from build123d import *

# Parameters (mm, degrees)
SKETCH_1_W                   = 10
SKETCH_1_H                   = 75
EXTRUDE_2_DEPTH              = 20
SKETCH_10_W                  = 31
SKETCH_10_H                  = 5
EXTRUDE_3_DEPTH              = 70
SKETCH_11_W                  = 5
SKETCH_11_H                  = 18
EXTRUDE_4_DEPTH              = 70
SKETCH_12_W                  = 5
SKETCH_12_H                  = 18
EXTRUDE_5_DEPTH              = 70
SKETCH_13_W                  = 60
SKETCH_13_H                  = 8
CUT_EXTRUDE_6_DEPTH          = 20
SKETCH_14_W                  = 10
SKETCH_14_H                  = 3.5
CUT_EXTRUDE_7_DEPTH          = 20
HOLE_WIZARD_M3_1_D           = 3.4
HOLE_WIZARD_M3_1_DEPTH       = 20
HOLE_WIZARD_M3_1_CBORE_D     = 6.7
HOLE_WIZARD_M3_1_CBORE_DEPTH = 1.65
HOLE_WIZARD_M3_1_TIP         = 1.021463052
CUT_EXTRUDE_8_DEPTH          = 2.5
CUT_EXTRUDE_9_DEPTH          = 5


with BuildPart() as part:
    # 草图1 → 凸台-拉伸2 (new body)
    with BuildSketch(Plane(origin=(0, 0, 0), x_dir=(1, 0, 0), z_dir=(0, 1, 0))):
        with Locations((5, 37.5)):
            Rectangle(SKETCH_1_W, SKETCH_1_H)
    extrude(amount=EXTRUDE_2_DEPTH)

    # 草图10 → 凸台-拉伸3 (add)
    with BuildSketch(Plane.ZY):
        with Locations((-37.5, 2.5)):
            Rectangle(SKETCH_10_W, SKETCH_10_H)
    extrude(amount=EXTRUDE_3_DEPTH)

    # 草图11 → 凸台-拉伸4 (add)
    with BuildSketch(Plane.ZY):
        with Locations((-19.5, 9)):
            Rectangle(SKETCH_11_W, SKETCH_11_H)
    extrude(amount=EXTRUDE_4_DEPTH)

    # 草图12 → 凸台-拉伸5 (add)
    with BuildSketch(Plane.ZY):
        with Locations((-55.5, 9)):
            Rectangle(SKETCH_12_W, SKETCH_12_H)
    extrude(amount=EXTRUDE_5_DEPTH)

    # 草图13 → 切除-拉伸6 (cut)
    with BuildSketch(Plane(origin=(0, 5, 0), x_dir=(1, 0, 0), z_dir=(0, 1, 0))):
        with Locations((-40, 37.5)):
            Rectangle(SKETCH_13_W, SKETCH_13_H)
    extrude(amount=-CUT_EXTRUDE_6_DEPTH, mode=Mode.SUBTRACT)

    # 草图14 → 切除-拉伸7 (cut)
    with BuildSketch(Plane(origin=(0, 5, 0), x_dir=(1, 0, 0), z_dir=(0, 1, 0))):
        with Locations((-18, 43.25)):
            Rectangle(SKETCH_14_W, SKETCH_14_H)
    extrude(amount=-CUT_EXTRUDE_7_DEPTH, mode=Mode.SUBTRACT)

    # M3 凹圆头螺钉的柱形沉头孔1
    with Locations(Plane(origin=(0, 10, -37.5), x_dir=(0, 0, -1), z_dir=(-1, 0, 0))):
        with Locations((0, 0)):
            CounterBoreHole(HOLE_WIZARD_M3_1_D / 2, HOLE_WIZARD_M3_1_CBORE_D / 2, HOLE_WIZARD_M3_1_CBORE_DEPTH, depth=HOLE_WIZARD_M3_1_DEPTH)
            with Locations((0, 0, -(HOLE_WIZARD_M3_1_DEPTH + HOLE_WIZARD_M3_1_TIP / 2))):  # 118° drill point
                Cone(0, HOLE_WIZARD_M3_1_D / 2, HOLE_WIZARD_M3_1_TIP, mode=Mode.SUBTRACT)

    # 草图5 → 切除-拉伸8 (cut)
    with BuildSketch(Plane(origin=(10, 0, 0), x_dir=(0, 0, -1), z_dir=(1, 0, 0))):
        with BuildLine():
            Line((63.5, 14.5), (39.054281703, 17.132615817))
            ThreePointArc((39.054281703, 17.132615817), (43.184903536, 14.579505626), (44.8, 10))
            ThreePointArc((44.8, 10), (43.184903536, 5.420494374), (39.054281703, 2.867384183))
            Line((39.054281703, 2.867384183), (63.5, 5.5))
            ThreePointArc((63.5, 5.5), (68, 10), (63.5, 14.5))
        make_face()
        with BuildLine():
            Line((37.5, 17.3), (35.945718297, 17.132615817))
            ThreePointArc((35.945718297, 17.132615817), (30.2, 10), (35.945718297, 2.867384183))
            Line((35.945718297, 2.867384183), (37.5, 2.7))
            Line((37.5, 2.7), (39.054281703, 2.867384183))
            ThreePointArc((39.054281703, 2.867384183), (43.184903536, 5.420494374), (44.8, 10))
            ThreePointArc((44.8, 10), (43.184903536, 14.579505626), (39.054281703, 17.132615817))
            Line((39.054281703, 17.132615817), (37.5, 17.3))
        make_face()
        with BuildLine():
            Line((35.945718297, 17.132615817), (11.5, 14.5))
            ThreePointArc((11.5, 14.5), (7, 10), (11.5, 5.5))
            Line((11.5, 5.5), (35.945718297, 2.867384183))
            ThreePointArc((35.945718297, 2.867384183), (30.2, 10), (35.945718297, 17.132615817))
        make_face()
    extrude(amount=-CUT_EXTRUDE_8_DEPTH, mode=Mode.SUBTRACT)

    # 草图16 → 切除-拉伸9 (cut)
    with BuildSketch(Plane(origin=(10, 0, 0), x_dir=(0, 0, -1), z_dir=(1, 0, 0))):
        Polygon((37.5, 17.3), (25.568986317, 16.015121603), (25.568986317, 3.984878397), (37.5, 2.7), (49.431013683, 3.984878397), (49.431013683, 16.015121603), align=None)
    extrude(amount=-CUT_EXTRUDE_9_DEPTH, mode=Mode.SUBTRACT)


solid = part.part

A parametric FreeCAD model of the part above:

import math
import FreeCAD as App
import Part
import Sketcher


def add_polygon(sketch, points):
    """Adds a closed chain of lines whose ends are joined by coincident constraints."""
    first, n = sketch.GeometryCount, len(points)
    for a, b in zip(points, points[1:] + points[:1]):
        sketch.addGeometry(Part.LineSegment(App.Vector(*a, 0), App.Vector(*b, 0)), False)
    for i in range(n):
        sketch.addConstraint(Sketcher.Constraint("Coincident", first + i, 2, first + (i + 1) % n, 1))

doc = App.newDocument("Part")
params = doc.addObject("Spreadsheet::Sheet", "Params")
for row, (alias, value) in enumerate([
    ("sketch1_width", "10 mm"),
    ("sketch1_height", "75 mm"),
    ("pad1_length", "20 mm"),
    ("sketch2_width", "5 mm"),
    ("sketch2_height", "31 mm"),
    ("pad2_length", "70 mm"),
    ("sketch3_width", "18 mm"),
    ("sketch3_height", "5 mm"),
    ("pad3_length", "70 mm"),
    ("sketch4_width", "18 mm"),
    ("sketch4_height", "5 mm"),
    ("pad4_length", "70 mm"),
    ("sketch5_width", "60 mm"),
    ("sketch5_height", "8 mm"),
    ("pocket1_length", "20 mm"),
    ("sketch6_width", "10 mm"),
    ("sketch6_height", "3.5 mm"),
    ("pocket2_length", "20 mm"),
    ("sketch7_diameter", "3.4 mm"),
    ("hole_diameter", "3.4 mm"),
    ("hole_depth", "20 mm"),
    ("hole_cbore_diameter", "6.7 mm"),
    ("hole_cbore_depth", "1.65 mm"),
    ("sketch8_radius", "4.5 mm"),
    ("pocket3_length", "2.5 mm"),
    ("sketch9_length", "12 mm"),
    ("pocket4_length", "5 mm"),
], start=1):
    params.set(f"A{row}", alias)
    params.set(f"B{row}", "=" + value)
    params.setAlias(f"B{row}", alias)

body = doc.addObject("PartDesign::Body", "Body")

# Sketch on XZ plane
sketch1 = body.newObject("Sketcher::SketchObject", "Sketch")
sketch1.AttachmentSupport = (doc.getObject("XZ_Plane"), [""])
sketch1.MapMode = "FlatFace"
add_polygon(sketch1, [(0, -75), (0, 0), (10, 0), (10, -75)])  # lines 0-3
sketch1.addConstraint([
    Sketcher.Constraint("Vertical", 0),
    Sketcher.Constraint("Horizontal", 1),
    Sketcher.Constraint("Vertical", 2),
    Sketcher.Constraint("Horizontal", 3),
    Sketcher.Constraint("Coincident", 0, 2, -1, 1),
    Sketcher.Constraint("DistanceX", 1, 1, 1, 2, 10.0),
    Sketcher.Constraint("DistanceY", 0, 1, 0, 2, 75.0),
])
sketch1.setExpression("Constraints[9]", "Params.sketch1_width")
sketch1.setExpression("Constraints[10]", "Params.sketch1_height")
pad1 = body.newObject("PartDesign::Pad", "Pad")
pad1.Profile = sketch1
pad1.setExpression("Length", "Params.pad1_length")
pad1.Reversed = True

# Sketch on YZ plane
sketch2 = body.newObject("Sketcher::SketchObject", "Sketch001")
sketch2.AttachmentSupport = (doc.getObject("YZ_Plane"), [""])
sketch2.MapMode = "FlatFace"
add_polygon(sketch2, [(5, -53), (0, -53), (0, -22), (5, -22)])  # lines 0-3
sketch2.addConstraint([
    Sketcher.Constraint("Horizontal", 0),
    Sketcher.Constraint("Vertical", 1),
    Sketcher.Constraint("Horizontal", 2),
    Sketcher.Constraint("Vertical", 3),
    Sketcher.Constraint("PointOnObject", 0, 2, -2),
    Sketcher.Constraint("DistanceX", 0, 2, 0, 1, 5.0),
    Sketcher.Constraint("DistanceY", 1, 1, 1, 2, 31.0),
    Sketcher.Constraint("DistanceY", 0, 2, -1, 1, 53.0),
])
sketch2.setExpression("Constraints[9]", "Params.sketch2_width")
sketch2.setExpression("Constraints[10]", "Params.sketch2_height")
pad2 = body.newObject("PartDesign::Pad", "Pad001")
pad2.Profile = sketch2
pad2.setExpression("Length", "Params.pad2_length")
pad2.Reversed = True

# Sketch on YZ plane
sketch3 = body.newObject("Sketcher::SketchObject", "Sketch002")
sketch3.AttachmentSupport = (doc.getObject("YZ_Plane"), [""])
sketch3.MapMode = "FlatFace"
add_polygon(sketch3, [(18, -22), (0, -22), (0, -17), (18, -17)])  # lines 0-3
sketch3.addConstraint([
    Sketcher.Constraint("Horizontal", 0),
    Sketcher.Constraint("Vertical", 1),
    Sketcher.Constraint("Horizontal", 2),
    Sketcher.Constraint("Vertical", 3),
    Sketcher.Constraint("PointOnObject", 0, 2, -2),
    Sketcher.Constraint("DistanceX", 0, 2, 0, 1, 18.0),
    Sketcher.Constraint("DistanceY", 1, 1, 1, 2, 5.0),
    Sketcher.Constraint("DistanceY", 0, 2, -1, 1, 22.0),
])
sketch3.setExpression("Constraints[9]", "Params.sketch3_width")
sketch3.setExpression("Constraints[10]", "Params.sketch3_height")
pad3 = body.newObject("PartDesign::Pad", "Pad002")
pad3.Profile = sketch3
pad3.setExpression("Length", "Params.pad3_length")
pad3.Reversed = True

# Sketch on YZ plane
sketch4 = body.newObject("Sketcher::SketchObject", "Sketch003")
sketch4.AttachmentSupport = (doc.getObject("YZ_Plane"), [""])
sketch4.MapMode = "FlatFace"
add_polygon(sketch4, [(18, -58), (0, -58), (0, -53), (18, -53)])  # lines 0-3
sketch4.addConstraint([
    Sketcher.Constraint("Horizontal", 0),
    Sketcher.Constraint("Vertical", 1),
    Sketcher.Constraint("Horizontal", 2),
    Sketcher.Constraint("Vertical", 3),
    Sketcher.Constraint("PointOnObject", 0, 2, -2),
    Sketcher.Constraint("DistanceX", 0, 2, 0, 1, 18.0),
    Sketcher.Constraint("DistanceY", 1, 1, 1, 2, 5.0),
    Sketcher.Constraint("DistanceY", 0, 2, -1, 1, 58.0),
])
sketch4.setExpression("Constraints[9]", "Params.sketch4_width")
sketch4.setExpression("Constraints[10]", "Params.sketch4_height")
pad4 = body.newObject("PartDesign::Pad", "Pad003")
pad4.Profile = sketch4
pad4.setExpression("Length", "Params.pad4_length")
pad4.Reversed = True

# Sketch on XZ plane
sketch5 = body.newObject("Sketcher::SketchObject", "Sketch004")
sketch5.AttachmentSupport = (doc.getObject("XZ_Plane"), [""])
sketch5.MapMode = "FlatFace"
sketch5.AttachmentOffset = App.Placement(App.Vector(0, 0, -5), App.Rotation())
add_polygon(sketch5, [(-70, -41.5), (-70, -33.5), (-10, -33.5), (-10, -41.5)])  # lines 0-3
sketch5.addConstraint([
    Sketcher.Constraint("Vertical", 0),
    Sketcher.Constraint("Horizontal", 1),
    Sketcher.Constraint("Vertical", 2),
    Sketcher.Constraint("Horizontal", 3),
    Sketcher.Constraint("DistanceX", 1, 1, 1, 2, 60.0),
    Sketcher.Constraint("DistanceY", 0, 1, 0, 2, 8.0),
    Sketcher.Constraint("DistanceX", 0, 2, -1, 1, 70.0),
    Sketcher.Constraint("DistanceY", 0, 2, -1, 1, 33.5),
])
sketch5.setExpression("Constraints[8]", "Params.sketch5_width")
sketch5.setExpression("Constraints[9]", "Params.sketch5_height")
pocket1 = body.newObject("PartDesign::Pocket", "Pocket")
pocket1.Profile = sketch5
pocket1.setExpression("Length", "Params.pocket1_length")
pocket1.Reversed = True

# Sketch on XZ plane
sketch6 = body.newObject("Sketcher::SketchObject", "Sketch005")
sketch6.AttachmentSupport = (doc.getObject("XZ_Plane"), [""])
sketch6.MapMode = "FlatFace"
sketch6.AttachmentOffset = App.Placement(App.Vector(0, 0, -5), App.Rotation())
add_polygon(sketch6, [(-23, -45), (-23, -41.5), (-13, -41.5), (-13, -45)])  # lines 0-3
sketch6.addConstraint([
    Sketcher.Constraint("Vertical", 0),
    Sketcher.Constraint("Horizontal", 1),
    Sketcher.Constraint("Vertical", 2),
    Sketcher.Constraint("Horizontal", 3),
    Sketcher.Constraint("DistanceX", 1, 1, 1, 2, 10.0),
    Sketcher.Constraint("DistanceY", 0, 1, 0, 2, 3.5),
    Sketcher.Constraint("DistanceX", 0, 2, -1, 1, 23.0),
    Sketcher.Constraint("DistanceY", 2, 2, -1, 1, 45.0),
])
sketch6.setExpression("Constraints[8]", "Params.sketch6_width")
sketch6.setExpression("Constraints[9]", "Params.sketch6_height")
pocket2 = body.newObject("PartDesign::Pocket", "Pocket001")
pocket2.Profile = sketch6
pocket2.setExpression("Length", "Params.pocket2_length")
pocket2.Reversed = True

# Sketch on YZ plane
sketch7 = body.newObject("Sketcher::SketchObject", "Sketch006")
sketch7.AttachmentSupport = (doc.getObject("YZ_Plane"), [""])
sketch7.MapMode = "FlatFace"
sketch7.addGeometry(Part.Circle(App.Vector(10, -37.5, 0), App.Vector(0, 0, 1), 1.7), False)
sketch7.addConstraint([
    Sketcher.Constraint("Diameter", 0, 3.4),
    Sketcher.Constraint("DistanceX", -1, 1, 0, 3, 10.0),
    Sketcher.Constraint("DistanceY", 0, 3, -1, 1, 37.5),
])
sketch7.setExpression("Constraints[0]", "Params.sketch7_diameter")
doc.recompute()
hole = body.newObject("PartDesign::Hole", "Hole")
hole.Profile = sketch7
hole.ThreadType = "None"
hole.setExpression("Diameter", "Params.hole_diameter")
hole.DepthType = "Dimension"
hole.setExpression("Depth", "Params.hole_depth")
hole.DrillPoint = "Angled"
hole.DrillPointAngle = 118
hole.HoleCutType = "Counterbore"
hole.setExpression("HoleCutDiameter", "Params.hole_cbore_diameter")
hole.setExpression("HoleCutDepth", "Params.hole_cbore_depth")
hole.Reversed = True

# Sketch on YZ plane
sketch8 = body.newObject("Sketcher::SketchObject", "Sketch007")
sketch8.AttachmentSupport = (doc.getObject("YZ_Plane"), [""])
sketch8.MapMode = "FlatFace"
sketch8.AttachmentOffset = App.Placement(App.Vector(0, 0, 10), App.Rotation())
sketch8.addGeometry([
    Part.LineSegment(App.Vector(14.5, -63.5, 0), App.Vector(17.132616, -39.054282, 0)),  # 0
    Part.LineSegment(App.Vector(17.132616, -39.054282, 0), App.Vector(17.3, -37.5, 0)),  # 1
    Part.LineSegment(App.Vector(17.3, -37.5, 0), App.Vector(17.132616, -35.945718, 0)),  # 2
    Part.LineSegment(App.Vector(17.132616, -35.945718, 0), App.Vector(14.5, -11.5, 0)),  # 3
    Part.ArcOfCircle(Part.Circle(App.Vector(10, -11.5, 0), App.Vector(0, 0, 1), 4.5), math.radians(0), math.radians(180)),  # 4
    Part.LineSegment(App.Vector(5.5, -11.5, 0), App.Vector(2.867384, -35.945718, 0)),  # 5
    Part.LineSegment(App.Vector(2.867384, -35.945718, 0), App.Vector(2.7, -37.5, 0)),  # 6
    Part.LineSegment(App.Vector(2.7, -37.5, 0), App.Vector(2.867384, -39.054282, 0)),  # 7
    Part.LineSegment(App.Vector(2.867384, -39.054282, 0), App.Vector(5.5, -63.5, 0)),  # 8
    Part.ArcOfCircle(Part.Circle(App.Vector(10, -63.5, 0), App.Vector(0, 0, 1), 4.5), math.radians(180), math.radians(360)),  # 9
], False)
sketch8.addConstraint([
    Sketcher.Constraint("Coincident", 0, 2, 1, 1),
    Sketcher.Constraint("Coincident", 1, 2, 2, 1),
    Sketcher.Constraint("Coincident", 2, 2, 3, 1),
    Sketcher.Constraint("Coincident", 3, 2, 4, 1),
    Sketcher.Constraint("Coincident", 4, 2, 5, 1),
    Sketcher.Constraint("Coincident", 5, 2, 6, 1),
    Sketcher.Constraint("Coincident", 6, 2, 7, 1),
    Sketcher.Constraint("Coincident", 7, 2, 8, 1),
    Sketcher.Constraint("Coincident", 8, 2, 9, 1),
    Sketcher.Constraint("Coincident", 9, 2, 0, 1),
    Sketcher.Constraint("Equal", 4, 9),
    Sketcher.Constraint("Parallel", 0, 1),
    Sketcher.Constraint("Parallel", 2, 3),
    Sketcher.Constraint("Parallel", 1, 5),
    Sketcher.Constraint("Parallel", 5, 6),
    Sketcher.Constraint("Parallel", 3, 7),
    Sketcher.Constraint("Parallel", 7, 8),
    Sketcher.Constraint("Horizontal", 4, 3, 3, 2),
    Sketcher.Constraint("Horizontal", 3, 2, 4, 2),
    Sketcher.Constraint("Horizontal", 2, 2, 5, 2),
    Sketcher.Constraint("Horizontal", 1, 2, 6, 2),
    Sketcher.Constraint("Horizontal", 0, 2, 7, 2),
    Sketcher.Constraint("Horizontal", 9, 3, 8, 2),
    Sketcher.Constraint("Horizontal", 8, 2, 9, 2),
    Sketcher.Constraint("Vertical", 4, 3, 9, 3),
    Sketcher.Constraint("Vertical", 0, 2, 2, 2),
    Sketcher.Constraint("Radius", 4, 4.5),
    Sketcher.Constraint("DistanceX", -1, 1, 4, 3, 10.0),
    Sketcher.Constraint("DistanceY", 9, 3, 4, 3, 52.0),
    Sketcher.Constraint("DistanceY", 4, 3, -1, 1, 11.5),
    Sketcher.Constraint("DistanceX", -1, 1, 1, 2, 17.3),
    Sketcher.Constraint("Distance", 1, 1.563269),
])
sketch8.setExpression("Constraints[26]", "Params.sketch8_radius")
pocket3 = body.newObject("PartDesign::Pocket", "Pocket002")
pocket3.Profile = sketch8
pocket3.setExpression("Length", "Params.pocket3_length")

# Sketch on YZ plane
sketch9 = body.newObject("Sketcher::SketchObject", "Sketch008")
sketch9.AttachmentSupport = (doc.getObject("YZ_Plane"), [""])
sketch9.MapMode = "FlatFace"
sketch9.AttachmentOffset = App.Placement(App.Vector(0, 0, 10), App.Rotation())
add_polygon(sketch9, [(17.3, -37.5), (16.015122, -25.568986), (3.984878, -25.568986), (2.7, -37.5), (3.984878, -49.431014), (16.015122, -49.431014)])  # lines 0-5
sketch9.addConstraint([
    Sketcher.Constraint("Horizontal", 1),
    Sketcher.Constraint("Horizontal", 4),
    Sketcher.Constraint("Parallel", 0, 3),
    Sketcher.Constraint("Parallel", 2, 5),
    Sketcher.Constraint("Horizontal", 2, 2, 5, 2),
    Sketcher.Constraint("Vertical", 1, 2, 3, 2),
    Sketcher.Constraint("Vertical", 0, 2, 4, 2),
    Sketcher.Constraint("Distance", 0, 12.0),
    Sketcher.Constraint("DistanceX", -1, 1, 2, 2, 2.7),
    Sketcher.Constraint("DistanceY", 2, 2, -1, 1, 37.5),
    Sketcher.Constraint("DistanceX", -1, 1, 5, 2, 17.3),
    Sketcher.Constraint("DistanceX", 1, 2, 1, 1, 12.030243),
])
sketch9.setExpression("Constraints[13]", "Params.sketch9_length")
pocket4 = body.newObject("PartDesign::Pocket", "Pocket003")
pocket4.Profile = sketch9
pocket4.setExpression("Length", "Params.pocket4_length")

doc.recompute()
